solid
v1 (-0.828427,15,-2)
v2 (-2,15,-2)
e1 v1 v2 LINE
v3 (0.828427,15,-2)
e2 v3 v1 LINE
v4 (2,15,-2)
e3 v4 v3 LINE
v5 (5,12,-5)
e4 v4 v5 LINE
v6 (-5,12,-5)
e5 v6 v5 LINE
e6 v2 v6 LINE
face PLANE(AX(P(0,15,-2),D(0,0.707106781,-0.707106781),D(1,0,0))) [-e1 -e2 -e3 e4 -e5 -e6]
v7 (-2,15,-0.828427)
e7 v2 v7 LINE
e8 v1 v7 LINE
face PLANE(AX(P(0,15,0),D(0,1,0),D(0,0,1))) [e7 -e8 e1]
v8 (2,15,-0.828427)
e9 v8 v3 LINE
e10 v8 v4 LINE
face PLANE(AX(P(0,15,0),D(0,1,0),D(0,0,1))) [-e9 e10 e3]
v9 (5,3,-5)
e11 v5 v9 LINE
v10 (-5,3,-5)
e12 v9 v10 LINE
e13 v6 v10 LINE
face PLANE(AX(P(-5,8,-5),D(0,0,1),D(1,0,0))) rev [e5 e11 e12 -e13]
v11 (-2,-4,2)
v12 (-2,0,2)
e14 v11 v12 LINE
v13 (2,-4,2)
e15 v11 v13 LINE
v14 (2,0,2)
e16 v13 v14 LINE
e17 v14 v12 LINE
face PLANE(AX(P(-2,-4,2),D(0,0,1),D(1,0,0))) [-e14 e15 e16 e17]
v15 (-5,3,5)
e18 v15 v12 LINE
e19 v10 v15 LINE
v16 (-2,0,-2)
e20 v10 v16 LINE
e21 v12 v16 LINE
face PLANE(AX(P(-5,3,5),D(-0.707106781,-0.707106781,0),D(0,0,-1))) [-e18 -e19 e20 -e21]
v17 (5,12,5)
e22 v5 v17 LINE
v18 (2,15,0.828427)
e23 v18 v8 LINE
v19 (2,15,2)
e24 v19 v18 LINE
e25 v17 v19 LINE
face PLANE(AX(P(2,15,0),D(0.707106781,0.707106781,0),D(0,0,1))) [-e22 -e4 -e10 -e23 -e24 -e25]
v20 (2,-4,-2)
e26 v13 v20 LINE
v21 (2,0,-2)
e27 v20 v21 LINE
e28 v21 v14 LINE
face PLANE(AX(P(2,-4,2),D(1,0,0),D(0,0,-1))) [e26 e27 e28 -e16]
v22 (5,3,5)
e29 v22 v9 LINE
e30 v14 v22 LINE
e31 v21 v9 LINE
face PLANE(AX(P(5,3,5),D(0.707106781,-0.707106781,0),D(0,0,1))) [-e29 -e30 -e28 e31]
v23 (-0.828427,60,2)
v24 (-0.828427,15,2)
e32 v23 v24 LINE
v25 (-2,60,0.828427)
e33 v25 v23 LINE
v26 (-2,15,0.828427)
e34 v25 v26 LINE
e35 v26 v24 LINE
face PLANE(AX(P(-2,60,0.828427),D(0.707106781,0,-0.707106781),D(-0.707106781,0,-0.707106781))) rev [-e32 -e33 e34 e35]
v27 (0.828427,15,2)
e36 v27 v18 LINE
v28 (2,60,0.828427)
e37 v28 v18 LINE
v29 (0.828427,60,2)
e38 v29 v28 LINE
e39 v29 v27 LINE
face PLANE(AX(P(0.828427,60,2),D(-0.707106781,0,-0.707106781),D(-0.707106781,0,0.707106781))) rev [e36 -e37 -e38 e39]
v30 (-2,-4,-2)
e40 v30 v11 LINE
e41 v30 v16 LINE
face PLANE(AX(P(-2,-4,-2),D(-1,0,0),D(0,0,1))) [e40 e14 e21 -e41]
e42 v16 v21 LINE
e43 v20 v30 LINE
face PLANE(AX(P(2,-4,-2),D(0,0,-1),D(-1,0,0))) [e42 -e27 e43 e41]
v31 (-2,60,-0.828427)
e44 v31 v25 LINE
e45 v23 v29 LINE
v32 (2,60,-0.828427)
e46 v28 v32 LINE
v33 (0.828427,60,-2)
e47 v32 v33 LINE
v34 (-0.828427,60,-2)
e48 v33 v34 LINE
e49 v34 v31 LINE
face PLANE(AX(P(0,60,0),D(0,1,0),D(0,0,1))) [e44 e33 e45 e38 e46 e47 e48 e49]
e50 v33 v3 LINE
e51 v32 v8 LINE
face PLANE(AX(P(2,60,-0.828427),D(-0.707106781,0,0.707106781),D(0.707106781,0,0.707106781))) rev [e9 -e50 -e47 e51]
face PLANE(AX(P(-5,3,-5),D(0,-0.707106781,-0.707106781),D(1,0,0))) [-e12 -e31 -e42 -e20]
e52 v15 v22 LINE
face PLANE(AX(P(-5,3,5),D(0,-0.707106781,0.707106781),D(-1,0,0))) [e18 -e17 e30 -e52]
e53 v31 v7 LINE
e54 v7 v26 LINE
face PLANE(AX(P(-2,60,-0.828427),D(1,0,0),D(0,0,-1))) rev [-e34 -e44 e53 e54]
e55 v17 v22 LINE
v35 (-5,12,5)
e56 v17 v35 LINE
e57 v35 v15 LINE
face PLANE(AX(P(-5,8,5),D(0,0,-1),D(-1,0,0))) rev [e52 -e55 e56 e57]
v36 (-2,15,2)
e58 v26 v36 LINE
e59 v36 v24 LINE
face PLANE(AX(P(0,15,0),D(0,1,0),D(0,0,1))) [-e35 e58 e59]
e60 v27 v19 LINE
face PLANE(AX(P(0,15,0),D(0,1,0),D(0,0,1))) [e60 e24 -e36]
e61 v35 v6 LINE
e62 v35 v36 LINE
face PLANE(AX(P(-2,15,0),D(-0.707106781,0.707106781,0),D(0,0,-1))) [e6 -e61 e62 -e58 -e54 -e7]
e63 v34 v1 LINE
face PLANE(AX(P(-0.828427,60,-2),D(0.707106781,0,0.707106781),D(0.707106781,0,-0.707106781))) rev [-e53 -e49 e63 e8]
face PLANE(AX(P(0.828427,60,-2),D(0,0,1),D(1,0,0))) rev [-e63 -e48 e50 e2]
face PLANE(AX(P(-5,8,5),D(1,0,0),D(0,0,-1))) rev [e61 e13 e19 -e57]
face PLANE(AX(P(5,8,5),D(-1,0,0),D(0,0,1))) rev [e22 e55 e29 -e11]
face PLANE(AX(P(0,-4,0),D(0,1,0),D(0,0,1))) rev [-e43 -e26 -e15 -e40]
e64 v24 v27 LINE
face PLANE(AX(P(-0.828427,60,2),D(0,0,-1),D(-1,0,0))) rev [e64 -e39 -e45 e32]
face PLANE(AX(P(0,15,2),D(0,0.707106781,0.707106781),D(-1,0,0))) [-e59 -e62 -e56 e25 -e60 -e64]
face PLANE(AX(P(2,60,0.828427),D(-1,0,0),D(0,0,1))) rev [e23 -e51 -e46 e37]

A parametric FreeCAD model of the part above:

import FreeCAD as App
import Part
import Sketcher

V = App.Vector
Q = App.Units.Quantity


def edges_at(feature, points):
    """Names of the edges that pass closest to the given points."""
    edges = feature.Shape.Edges
    near = lambda p: min(range(len(edges)), key=lambda i: edges[i].distToShape(Part.Vertex(*p))[0])
    return sorted({f"Edge{near(p) + 1}" for p in points})

doc = App.newDocument("Part")
body = doc.addObject("PartDesign::Body", "Body")

sketch1 = body.newObject("Sketcher::SketchObject", "Sketch")
sketch1.AttachmentSupport = (doc.getObject("XZ_Plane"), [""])
sketch1.MapMode = "FlatFace"
sketch1.addGeometry(Part.LineSegment(V(-5, -5, 0), V(-5, 5, 0)), False)
sketch1.addGeometry(Part.LineSegment(V(-5, 5, 0), V(5, 5, 0)), False)
sketch1.addGeometry(Part.LineSegment(V(5, 5, 0), V(5, -5, 0)), False)
sketch1.addGeometry(Part.LineSegment(V(5, -5, 0), V(-5, -5, 0)), False)
sketch1.addConstraint(Sketcher.Constraint("Coincident", 0, 2, 1, 1))
sketch1.addConstraint(Sketcher.Constraint("Coincident", 1, 2, 2, 1))
sketch1.addConstraint(Sketcher.Constraint("Coincident", 2, 2, 3, 1))
sketch1.addConstraint(Sketcher.Constraint("Coincident", 3, 2, 0, 1))
sketch1.addConstraint(Sketcher.Constraint("Vertical", 0))
sketch1.addConstraint(Sketcher.Constraint("Horizontal", 1))
sketch1.addConstraint(Sketcher.Constraint("Vertical", 2))
sketch1.addConstraint(Sketcher.Constraint("Horizontal", 3))
sketch1.addConstraint(Sketcher.Constraint("Symmetric", 0, 2, 2, 2, -1, 1))
sketch1.addConstraint(Sketcher.Constraint("Equal", 3, 0))
sketch1.addConstraint(Sketcher.Constraint("DistanceX", 1, 1, 1, 2, Q("10 mm")))
pad1 = body.newObject("PartDesign::Pad", "Pad")
pad1.Profile = sketch1
pad1.Length = 8
pad1.Reversed = True
doc.recompute()

chamfer = body.newObject("PartDesign::Chamfer", "Chamfer")
chamfer.Base = (pad1, edges_at(pad1, [
    (0, 0, 5),
    (-5, 0, 0),
    (0, 0, -5),
    (5, 0, 0),
]))
chamfer.Size = 3

sketch2 = body.newObject("Sketcher::SketchObject", "Sketch001")
sketch2.AttachmentSupport = (doc.getObject("XZ_Plane"), [""])
sketch2.MapMode = "FlatFace"
sketch2.addGeometry(Part.LineSegment(V(-2, -2, 0), V(-2, 2, 0)), False)
sketch2.addGeometry(Part.LineSegment(V(-2, 2, 0), V(2, 2, 0)), False)
sketch2.addGeometry(Part.LineSegment(V(2, 2, 0), V(2, -2, 0)), False)
sketch2.addGeometry(Part.LineSegment(V(2, -2, 0), V(-2, -2, 0)), False)
sketch2.addConstraint(Sketcher.Constraint("Coincident", 0, 2, 1, 1))
sketch2.addConstraint(Sketcher.Constraint("Coincident", 1, 2, 2, 1))
sketch2.addConstraint(Sketcher.Constraint("Coincident", 2, 2, 3, 1))
sketch2.addConstraint(Sketcher.Constraint("Coincident", 3, 2, 0, 1))
sketch2.addConstraint(Sketcher.Constraint("Vertical", 0))
sketch2.addConstraint(Sketcher.Constraint("Horizontal", 1))
sketch2.addConstraint(Sketcher.Constraint("Vertical", 2))
sketch2.addConstraint(Sketcher.Constraint("Horizontal", 3))
sketch2.addConstraint(Sketcher.Constraint("Symmetric", 0, 2, 2, 2, -1, 1))
sketch2.addConstraint(Sketcher.Constraint("Equal", 3, 0))
sketch2.addConstraint(Sketcher.Constraint("DistanceX", 1, 1, 1, 2, Q("4 mm")))
pad2 = body.newObject("PartDesign::Pad", "Pad001")
pad2.Profile = sketch2
pad2.Length = 4

sketch3 = body.newObject("Sketcher::SketchObject", "Sketch002")
sketch3.AttachmentSupport = (doc.getObject("XZ_Plane"), [""])
sketch3.MapMode = "FlatFace"
sketch3.AttachmentOffset = App.Placement(V(0, 0, -8), App.Rotation())
sketch3.addGeometry(Part.LineSegment(V(-5, -5, 0), V(-5, 5, 0)), False)
sketch3.addGeometry(Part.LineSegment(V(-5, 5, 0), V(5, 5, 0)), False)
sketch3.addGeometry(Part.LineSegment(V(5, 5, 0), V(5, -5, 0)), False)
sketch3.addGeometry(Part.LineSegment(V(5, -5, 0), V(-5, -5, 0)), False)
sketch3.addConstraint(Sketcher.Constraint("Coincident", 0, 2, 1, 1))
sketch3.addConstraint(Sketcher.Constraint("Coincident", 1, 2, 2, 1))
sketch3.addConstraint(Sketcher.Constraint("Coincident", 2, 2, 3, 1))
sketch3.addConstraint(Sketcher.Constraint("Coincident", 3, 2, 0, 1))
sketch3.addConstraint(Sketcher.Constraint("Vertical", 0))
sketch3.addConstraint(Sketcher.Constraint("Horizontal", 1))
sketch3.addConstraint(Sketcher.Constraint("Vertical", 2))
sketch3.addConstraint(Sketcher.Constraint("Horizontal", 3))
sketch3.addConstraint(Sketcher.Constraint("Symmetric", 0, 2, 2, 2, -1, 1))
sketch3.addConstraint(Sketcher.Constraint("Equal", 3, 0))
sketch3.addConstraint(Sketcher.Constraint("DistanceX", 1, 1, 1, 2, Q("10 mm")))
pad3 = body.newObject("PartDesign::Pad", "Pad002")
pad3.Profile = sketch3
pad3.Length = 7
pad3.Reversed = True
doc.recompute()

chamfer2 = body.newObject("PartDesign::Chamfer", "Chamfer001")
chamfer2.Base = (pad3, edges_at(pad3, [
    (-5, 15, 0),
    (0, 15, 5),
    (5, 15, 0),
    (0, 15, -5),
]))
chamfer2.Size = 3

sketch4 = body.newObject("Sketcher::SketchObject", "Sketch003")
sketch4.AttachmentSupport = (doc.getObject("XZ_Plane"), [""])
sketch4.MapMode = "FlatFace"
sketch4.AttachmentOffset = App.Placement(V(0, 0, -15), App.Rotation())
sketch4.addGeometry(Part.LineSegment(V(2, -0.8, 0), V(0.8, -2, 0)), False)
sketch4.addGeometry(Part.LineSegment(V(0.8, -2, 0), V(-0.8, -2, 0)), False)
sketch4.addGeometry(Part.LineSegment(V(-0.8, -2, 0), V(-2, -0.8, 0)), False)
sketch4.addGeometry(Part.LineSegment(V(-2, -0.8, 0), V(-2, 0.8, 0)), False)
sketch4.addGeometry(Part.LineSegment(V(-2, 0.8, 0), V(-0.8, 2, 0)), False)
sketch4.addGeometry(Part.LineSegment(V(-0.8, 2, 0), V(0.8, 2, 0)), False)
sketch4.addGeometry(Part.LineSegment(V(0.8, 2, 0), V(2, 0.8, 0)), False)
sketch4.addGeometry(Part.LineSegment(V(2, 0.8, 0), V(2, -0.8, 0)), False)
sketch4.addConstraint(Sketcher.Constraint("Coincident", 0, 2, 1, 1))
sketch4.addConstraint(Sketcher.Constraint("Coincident", 1, 2, 2, 1))
sketch4.addConstraint(Sketcher.Constraint("Coincident", 2, 2, 3, 1))
sketch4.addConstraint(Sketcher.Constraint("Coincident", 3, 2, 4, 1))
sketch4.addConstraint(Sketcher.Constraint("Coincident", 4, 2, 5, 1))
sketch4.addConstraint(Sketcher.Constraint("Coincident", 5, 2, 6, 1))
sketch4.addConstraint(Sketcher.Constraint("Coincident", 6, 2, 7, 1))
sketch4.addConstraint(Sketcher.Constraint("Coincident", 7, 2, 0, 1))
sketch4.addConstraint(Sketcher.Constraint("Horizontal", 1))
sketch4.addConstraint(Sketcher.Constraint("Vertical", 3))
sketch4.addConstraint(Sketcher.Constraint("Horizontal", 5))
sketch4.addConstraint(Sketcher.Constraint("Vertical", 7))
sketch4.addConstraint(Sketcher.Constraint("Symmetric", 0, 2, 4, 2, -1, 1))
sketch4.addConstraint(Sketcher.Constraint("Symmetric", 2, 2, 6, 2, -1, 1))
sketch4.addConstraint(Sketcher.Constraint("Perpendicular", 0, 2))
sketch4.addConstraint(Sketcher.Constraint("Perpendicular", 2, 4))
sketch4.addConstraint(Sketcher.Constraint("Perpendicular", 4, 6))
sketch4.addConstraint(Sketcher.Constraint("Horizontal", 3, 2, 6, 2))
sketch4.addConstraint(Sketcher.Constraint("Vertical", 1, 2, 4, 2))
sketch4.addConstraint(Sketcher.Constraint("Equal", 5, 3))
sketch4.addConstraint(Sketcher.Constraint("DistanceY", 0, 2, -1, 1, Q("2 mm")))
sketch4.addConstraint(Sketcher.Constraint("DistanceX", 1, 2, 1, 1, Q("1.656854 mm")))
pad4 = body.newObject("PartDesign::Pad", "Pad003")
pad4.Profile = sketch4
pad4.Length = 45
pad4.Reversed = True

doc.recompute()
